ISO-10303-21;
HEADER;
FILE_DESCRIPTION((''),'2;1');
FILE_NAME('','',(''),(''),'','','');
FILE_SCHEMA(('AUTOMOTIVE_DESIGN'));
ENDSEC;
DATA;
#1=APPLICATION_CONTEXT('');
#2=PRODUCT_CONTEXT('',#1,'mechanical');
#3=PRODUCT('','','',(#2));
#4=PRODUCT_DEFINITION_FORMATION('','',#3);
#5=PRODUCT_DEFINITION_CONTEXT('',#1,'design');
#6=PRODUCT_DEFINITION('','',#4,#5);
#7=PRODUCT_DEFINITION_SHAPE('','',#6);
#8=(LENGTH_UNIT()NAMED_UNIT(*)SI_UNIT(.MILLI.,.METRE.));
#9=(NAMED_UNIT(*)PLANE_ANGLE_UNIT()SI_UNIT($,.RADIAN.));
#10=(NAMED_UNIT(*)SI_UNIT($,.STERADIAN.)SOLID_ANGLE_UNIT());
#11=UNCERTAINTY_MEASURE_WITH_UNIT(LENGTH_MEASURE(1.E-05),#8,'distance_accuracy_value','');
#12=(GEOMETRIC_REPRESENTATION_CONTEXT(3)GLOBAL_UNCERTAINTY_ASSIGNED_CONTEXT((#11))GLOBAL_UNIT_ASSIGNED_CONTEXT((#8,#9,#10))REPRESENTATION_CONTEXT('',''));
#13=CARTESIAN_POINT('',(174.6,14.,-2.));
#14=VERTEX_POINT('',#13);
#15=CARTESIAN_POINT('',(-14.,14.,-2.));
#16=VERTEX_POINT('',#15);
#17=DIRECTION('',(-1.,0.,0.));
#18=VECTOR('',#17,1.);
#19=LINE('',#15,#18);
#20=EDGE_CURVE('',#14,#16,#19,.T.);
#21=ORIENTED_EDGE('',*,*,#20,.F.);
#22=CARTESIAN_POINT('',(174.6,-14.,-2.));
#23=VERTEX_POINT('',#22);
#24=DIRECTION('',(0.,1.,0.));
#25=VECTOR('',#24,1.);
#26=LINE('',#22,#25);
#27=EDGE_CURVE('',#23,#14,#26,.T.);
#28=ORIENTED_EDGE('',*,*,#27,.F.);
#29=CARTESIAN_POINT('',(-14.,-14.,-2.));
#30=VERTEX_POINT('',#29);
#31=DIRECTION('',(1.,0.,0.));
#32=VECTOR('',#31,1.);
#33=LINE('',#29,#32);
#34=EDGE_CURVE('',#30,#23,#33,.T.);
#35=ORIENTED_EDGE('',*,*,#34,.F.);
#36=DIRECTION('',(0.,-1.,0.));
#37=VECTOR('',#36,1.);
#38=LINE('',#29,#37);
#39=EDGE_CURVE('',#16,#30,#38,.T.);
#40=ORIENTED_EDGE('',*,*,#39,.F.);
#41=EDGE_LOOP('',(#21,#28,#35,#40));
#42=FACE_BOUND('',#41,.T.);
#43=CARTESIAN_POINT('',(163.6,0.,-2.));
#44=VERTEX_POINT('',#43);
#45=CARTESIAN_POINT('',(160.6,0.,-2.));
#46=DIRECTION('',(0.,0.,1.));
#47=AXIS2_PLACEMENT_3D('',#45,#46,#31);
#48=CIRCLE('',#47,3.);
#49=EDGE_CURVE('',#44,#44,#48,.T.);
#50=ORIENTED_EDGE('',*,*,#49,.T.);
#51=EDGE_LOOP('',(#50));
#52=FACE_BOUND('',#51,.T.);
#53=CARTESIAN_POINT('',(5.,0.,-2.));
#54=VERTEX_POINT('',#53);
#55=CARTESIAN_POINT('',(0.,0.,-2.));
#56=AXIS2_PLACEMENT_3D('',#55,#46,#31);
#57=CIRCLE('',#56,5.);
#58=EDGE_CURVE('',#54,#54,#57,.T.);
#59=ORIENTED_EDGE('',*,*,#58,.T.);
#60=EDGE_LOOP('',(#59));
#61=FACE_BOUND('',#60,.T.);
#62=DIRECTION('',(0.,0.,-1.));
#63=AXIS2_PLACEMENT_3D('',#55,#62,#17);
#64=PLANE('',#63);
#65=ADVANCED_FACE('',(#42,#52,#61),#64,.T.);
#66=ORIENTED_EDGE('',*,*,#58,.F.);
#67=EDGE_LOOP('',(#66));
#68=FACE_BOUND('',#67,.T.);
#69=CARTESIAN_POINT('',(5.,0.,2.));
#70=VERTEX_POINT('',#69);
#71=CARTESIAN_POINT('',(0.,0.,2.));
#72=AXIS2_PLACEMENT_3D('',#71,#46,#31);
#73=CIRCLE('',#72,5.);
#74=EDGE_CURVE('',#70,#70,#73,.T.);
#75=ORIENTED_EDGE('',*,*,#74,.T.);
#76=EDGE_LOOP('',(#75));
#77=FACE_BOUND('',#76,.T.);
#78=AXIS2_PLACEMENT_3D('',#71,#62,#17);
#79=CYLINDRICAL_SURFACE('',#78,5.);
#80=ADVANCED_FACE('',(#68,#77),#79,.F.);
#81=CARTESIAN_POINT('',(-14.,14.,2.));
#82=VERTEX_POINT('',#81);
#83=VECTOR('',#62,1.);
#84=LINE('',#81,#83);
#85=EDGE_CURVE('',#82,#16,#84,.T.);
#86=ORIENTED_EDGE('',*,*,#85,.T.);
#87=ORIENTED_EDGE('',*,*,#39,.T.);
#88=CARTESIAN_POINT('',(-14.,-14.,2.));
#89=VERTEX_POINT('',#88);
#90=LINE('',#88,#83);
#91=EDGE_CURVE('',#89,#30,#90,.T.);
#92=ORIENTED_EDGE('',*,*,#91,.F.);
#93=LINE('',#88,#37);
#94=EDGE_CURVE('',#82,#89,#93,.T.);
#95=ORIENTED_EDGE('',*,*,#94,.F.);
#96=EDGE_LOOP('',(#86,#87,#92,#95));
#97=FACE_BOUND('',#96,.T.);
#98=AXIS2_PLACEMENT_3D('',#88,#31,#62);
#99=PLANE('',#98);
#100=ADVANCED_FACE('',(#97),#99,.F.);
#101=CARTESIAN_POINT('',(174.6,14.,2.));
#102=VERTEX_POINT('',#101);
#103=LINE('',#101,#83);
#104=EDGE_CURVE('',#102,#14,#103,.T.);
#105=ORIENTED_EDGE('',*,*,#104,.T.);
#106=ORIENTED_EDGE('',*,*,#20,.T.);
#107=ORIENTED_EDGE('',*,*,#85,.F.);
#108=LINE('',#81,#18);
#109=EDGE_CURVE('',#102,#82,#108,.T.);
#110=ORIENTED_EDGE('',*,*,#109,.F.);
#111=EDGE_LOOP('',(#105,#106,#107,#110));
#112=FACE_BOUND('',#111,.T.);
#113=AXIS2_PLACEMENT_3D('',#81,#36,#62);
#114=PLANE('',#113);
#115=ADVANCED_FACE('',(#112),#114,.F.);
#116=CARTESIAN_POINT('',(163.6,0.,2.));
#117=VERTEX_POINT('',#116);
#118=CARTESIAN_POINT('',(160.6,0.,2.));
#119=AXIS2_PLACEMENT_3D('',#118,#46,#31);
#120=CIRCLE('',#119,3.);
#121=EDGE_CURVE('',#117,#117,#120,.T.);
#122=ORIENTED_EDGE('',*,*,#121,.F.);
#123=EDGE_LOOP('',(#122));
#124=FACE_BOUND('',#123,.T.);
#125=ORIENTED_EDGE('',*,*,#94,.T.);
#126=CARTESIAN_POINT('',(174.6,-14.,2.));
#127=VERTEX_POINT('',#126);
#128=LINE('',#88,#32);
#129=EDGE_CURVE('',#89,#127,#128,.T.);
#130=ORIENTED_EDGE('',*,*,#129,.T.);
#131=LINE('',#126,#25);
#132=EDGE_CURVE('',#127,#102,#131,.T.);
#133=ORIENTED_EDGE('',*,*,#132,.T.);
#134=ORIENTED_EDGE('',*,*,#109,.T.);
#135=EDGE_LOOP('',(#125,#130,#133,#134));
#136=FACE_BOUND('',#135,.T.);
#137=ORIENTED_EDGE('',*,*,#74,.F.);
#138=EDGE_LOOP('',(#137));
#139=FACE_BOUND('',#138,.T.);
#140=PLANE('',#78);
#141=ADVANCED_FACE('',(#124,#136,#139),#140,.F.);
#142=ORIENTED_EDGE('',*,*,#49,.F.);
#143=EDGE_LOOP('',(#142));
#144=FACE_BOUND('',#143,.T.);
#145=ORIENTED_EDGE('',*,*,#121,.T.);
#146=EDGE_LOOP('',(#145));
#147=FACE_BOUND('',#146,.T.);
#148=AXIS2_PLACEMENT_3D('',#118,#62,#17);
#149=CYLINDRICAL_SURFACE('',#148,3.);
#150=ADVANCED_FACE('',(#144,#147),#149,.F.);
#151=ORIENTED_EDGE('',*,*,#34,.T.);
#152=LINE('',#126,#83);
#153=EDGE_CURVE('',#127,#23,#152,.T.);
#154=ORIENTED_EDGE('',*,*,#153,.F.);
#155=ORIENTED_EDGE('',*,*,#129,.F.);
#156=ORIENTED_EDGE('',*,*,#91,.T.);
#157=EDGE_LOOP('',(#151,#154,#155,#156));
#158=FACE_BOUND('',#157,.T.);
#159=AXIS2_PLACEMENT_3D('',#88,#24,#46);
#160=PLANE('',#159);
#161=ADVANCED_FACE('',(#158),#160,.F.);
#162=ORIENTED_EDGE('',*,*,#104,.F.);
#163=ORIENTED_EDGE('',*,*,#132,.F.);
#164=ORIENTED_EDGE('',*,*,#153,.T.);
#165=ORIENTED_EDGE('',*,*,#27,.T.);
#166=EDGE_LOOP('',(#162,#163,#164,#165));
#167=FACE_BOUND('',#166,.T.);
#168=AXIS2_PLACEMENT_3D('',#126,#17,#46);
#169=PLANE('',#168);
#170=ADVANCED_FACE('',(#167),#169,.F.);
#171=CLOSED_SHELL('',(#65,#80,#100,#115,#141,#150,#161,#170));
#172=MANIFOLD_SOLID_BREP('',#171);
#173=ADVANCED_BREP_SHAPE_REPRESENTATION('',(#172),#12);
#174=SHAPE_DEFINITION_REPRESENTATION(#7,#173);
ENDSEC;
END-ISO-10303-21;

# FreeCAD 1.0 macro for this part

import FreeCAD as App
import Part
import Sketcher

doc = App.newDocument("Part")
params = doc.addObject("Spreadsheet::Sheet", "Params")
for row, (alias, value) in enumerate([
    ("sketch1_diameter", "10 mm"),
    ("sketch1_diameter2", "6 mm"),
    ("sketch1_height", "28 mm"),
    ("sketch1_width", "188.6 mm"),
    ("pad1_length", "4 mm"),
], start=1):
    params.set(f"A{row}", alias)
    params.set(f"B{row}", "=" + value)
    params.setAlias(f"B{row}", alias)

body = doc.addObject("PartDesign::Body", "Body")

sketch1 = body.newObject("Sketcher::SketchObject", "Sketch")
sketch1.AttachmentSupport = (doc.getObject("XY_Plane"), [""])
sketch1.MapMode = "FlatFace"
sketch1.addGeometry([
    Part.LineSegment(App.Vector(-14, 14, 0), App.Vector(-14, -14, 0)),
    Part.LineSegment(App.Vector(-14, -14, 0), App.Vector(174.6, -14, 0)),
    Part.LineSegment(App.Vector(174.6, -14, 0), App.Vector(174.6, 14, 0)),
    Part.LineSegment(App.Vector(174.6, 14, 0), App.Vector(-14, 14, 0)),
    Part.Circle(App.Vector(0, 0, 0), App.Vector(0, 0, 1), 5),
    Part.Circle(App.Vector(160.6, 0, 0), App.Vector(0, 0, 1), 3),
], False)
sketch1.addConstraint([
    Sketcher.Constraint("Coincident", 0, 2, 1, 1),
    Sketcher.Constraint("Coincident", 1, 2, 2, 1),
    Sketcher.Constraint("Coincident", 2, 2, 3, 1),
    Sketcher.Constraint("Coincident", 3, 2, 0, 1),
    Sketcher.Constraint("Vertical", 0),
    Sketcher.Constraint("Horizontal", 1),
    Sketcher.Constraint("Vertical", 2),
    Sketcher.Constraint("Horizontal", 3),
    Sketcher.Constraint("Coincident", 4, 3, -1, 1),
    Sketcher.Constraint("PointOnObject", 5, 3, -1),
    Sketcher.Constraint("Diameter", 4, 10.0),
    Sketcher.Constraint("Diameter", 5, 6.0),
    Sketcher.Constraint("DistanceY", 0, 2, 0, 1, 28.0),
    Sketcher.Constraint("DistanceX", 1, 1, 1, 2, 188.6),
    Sketcher.Constraint("DistanceX", 0, 2, -1, 1, 14.0),
    Sketcher.Constraint("DistanceY", 0, 2, -1, 1, 14.0),
    Sketcher.Constraint("DistanceX", 5, 3, 1, 2, 14.0),
])
sketch1.setExpression("Constraints[10]", "Params.sketch1_diameter")
sketch1.setExpression("Constraints[11]", "Params.sketch1_diameter2")
sketch1.setExpression("Constraints[12]", "Params.sketch1_height")
sketch1.setExpression("Constraints[13]", "Params.sketch1_width")
pad1 = body.newObject("PartDesign::Pad", "Pad")
pad1.Profile = sketch1
pad1.setExpression("Length", "Params.pad1_length")
pad1.Midplane = True

doc.recompute()
